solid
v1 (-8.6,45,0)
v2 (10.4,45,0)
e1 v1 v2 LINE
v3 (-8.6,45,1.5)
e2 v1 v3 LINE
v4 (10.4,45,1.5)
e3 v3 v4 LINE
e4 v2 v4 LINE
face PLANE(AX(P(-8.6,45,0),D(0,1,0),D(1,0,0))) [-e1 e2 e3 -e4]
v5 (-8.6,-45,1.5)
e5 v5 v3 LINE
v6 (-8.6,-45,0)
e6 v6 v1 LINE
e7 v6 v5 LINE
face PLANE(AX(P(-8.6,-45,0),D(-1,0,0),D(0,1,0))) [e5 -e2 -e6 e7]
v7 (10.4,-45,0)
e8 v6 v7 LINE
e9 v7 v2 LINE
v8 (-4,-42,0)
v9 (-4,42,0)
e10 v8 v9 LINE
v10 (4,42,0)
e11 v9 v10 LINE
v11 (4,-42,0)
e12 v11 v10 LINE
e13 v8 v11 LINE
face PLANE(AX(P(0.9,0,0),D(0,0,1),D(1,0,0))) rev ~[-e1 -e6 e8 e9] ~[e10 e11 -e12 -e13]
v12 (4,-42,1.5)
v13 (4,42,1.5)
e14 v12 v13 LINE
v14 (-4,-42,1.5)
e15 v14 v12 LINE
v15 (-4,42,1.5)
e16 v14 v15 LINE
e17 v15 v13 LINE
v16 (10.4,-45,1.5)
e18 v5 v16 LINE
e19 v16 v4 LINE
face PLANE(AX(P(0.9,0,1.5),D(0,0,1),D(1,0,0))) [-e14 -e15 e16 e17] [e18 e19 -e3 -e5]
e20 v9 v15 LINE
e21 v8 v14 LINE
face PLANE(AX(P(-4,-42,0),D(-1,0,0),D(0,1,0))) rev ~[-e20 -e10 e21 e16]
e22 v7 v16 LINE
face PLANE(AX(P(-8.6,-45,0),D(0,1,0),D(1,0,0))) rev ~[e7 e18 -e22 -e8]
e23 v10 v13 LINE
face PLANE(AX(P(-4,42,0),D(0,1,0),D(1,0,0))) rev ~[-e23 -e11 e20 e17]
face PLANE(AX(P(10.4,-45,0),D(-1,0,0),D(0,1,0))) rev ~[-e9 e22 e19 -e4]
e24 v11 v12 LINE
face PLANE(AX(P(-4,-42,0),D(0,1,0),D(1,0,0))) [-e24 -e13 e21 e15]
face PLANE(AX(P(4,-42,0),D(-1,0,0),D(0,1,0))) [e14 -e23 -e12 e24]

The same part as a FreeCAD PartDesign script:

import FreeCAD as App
import Part
import Sketcher
Q = App.Units.Quantity


def add_polygon(sketch, points):
    """Adds a closed chain of lines whose ends are joined by coincident constraints."""
    first, n = sketch.GeometryCount, len(points)
    for a, b in zip(points, points[1:] + points[:1]):
        sketch.addGeometry(Part.LineSegment(App.Vector(*a, 0), App.Vector(*b, 0)), False)
    for i in range(n):
        sketch.addConstraint(Sketcher.Constraint("Coincident", first + i, 2, first + (i + 1) % n, 1))

doc = App.newDocument("Part")
body = doc.addObject("PartDesign::Body", "Body")

# Sketch on XY plane
sketch1 = doc.addObject("Sketcher::SketchObject", "Sketch")
body.addObject(sketch1)
sketch1.AttachmentSupport = (doc.XY_Plane, [""])
sketch1.MapMode = "FlatFace"
add_polygon(sketch1, [(-9, 45), (-9, -45), (10, -45), (10, 45)])  # lines 0-3
add_polygon(sketch1, [(4, -42), (-4, -42), (-4, 42), (4, 42)])  # lines 4-7
sketch1.addConstraint([
    Sketcher.Constraint("Vertical", 0),
    Sketcher.Constraint("Horizontal", 1),
    Sketcher.Constraint("Vertical", 2),
    Sketcher.Constraint("Horizontal", 3),
    Sketcher.Constraint("Horizontal", 4),
    Sketcher.Constraint("Vertical", 5),
    Sketcher.Constraint("Horizontal", 6),
    Sketcher.Constraint("Vertical", 7),
    Sketcher.Constraint("Symmetric", 4, 2, 6, 2, -1, 1),
    Sketcher.Constraint("DistanceX", 1, 1, 1, 2, Q("19 mm")),
    Sketcher.Constraint("DistanceX", 4, 2, 4, 1, Q("8 mm")),
    Sketcher.Constraint("DistanceY", 0, 2, 0, 1, Q("90 mm")),
    Sketcher.Constraint("DistanceY", 5, 1, 5, 2, Q("84 mm")),
    Sketcher.Constraint("DistanceY", 0, 2, -1, 1, Q("45 mm")),
    Sketcher.Constraint("DistanceX", 0, 2, -1, 1, Q("8.6 mm")),
])
pad1 = doc.addObject("PartDesign::Pad", "Pad")
body.addObject(pad1)
pad1.Profile = sketch1
pad1.Length = 1.5

doc.recompute()
